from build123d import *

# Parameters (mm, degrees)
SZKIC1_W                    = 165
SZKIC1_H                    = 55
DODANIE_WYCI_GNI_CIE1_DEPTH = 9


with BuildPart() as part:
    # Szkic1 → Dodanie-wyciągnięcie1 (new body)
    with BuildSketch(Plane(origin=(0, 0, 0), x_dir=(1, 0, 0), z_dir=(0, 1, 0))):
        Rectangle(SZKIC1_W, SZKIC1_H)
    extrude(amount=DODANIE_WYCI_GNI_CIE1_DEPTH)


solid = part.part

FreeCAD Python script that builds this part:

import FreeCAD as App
import Part
import Sketcher

V = App.Vector
Q = App.Units.Quantity


def add_polygon(sketch, points):
    """Adds a closed chain of lines whose ends are joined by coincident constraints."""
    first, n = sketch.GeometryCount, len(points)
    for a, b in zip(points, points[1:] + points[:1]):
        sketch.addGeometry(Part.LineSegment(App.Vector(*a, 0), App.Vector(*b, 0)), False)
    for i in range(n):
        sketch.addConstraint(Sketcher.Constraint("Coincident", first + i, 2, first + (i + 1) % n, 1))

doc = App.newDocument("Part")
params = doc.addObject("Spreadsheet::Sheet", "Params")
for row, (alias, value) in enumerate([
    ("sketch1_width", "165 mm"),
    ("sketch1_height", "55 mm"),
    ("pad1_length", "9 mm"),
], start=1):
    params.set(f"A{row}", alias)
    params.set(f"B{row}", "=" + value)
    params.setAlias(f"B{row}", alias)

body = doc.addObject("PartDesign::Body", "Body")

sketch1 = doc.addObject("Sketcher::SketchObject", "Sketch")
body.addObject(sketch1)
sketch1.AttachmentSupport = (doc.XZ_Plane, [""])
sketch1.MapMode = "FlatFace"
add_polygon(sketch1, [(-82, -28), (-82, 28), (82, 28), (82, -28)])
sketch1.addConstraint([
    Sketcher.Constraint("Vertical", 0),
    Sketcher.Constraint("Horizontal", 1),
    Sketcher.Constraint("Vertical", 2),
    Sketcher.Constraint("Horizontal", 3),
    Sketcher.Constraint("Symmetric", 0, 2, 2, 2, -1, 1),
    Sketcher.Constraint("DistanceX", 1, 1, 1, 2, Q("165 mm")),
    Sketcher.Constraint("DistanceY", 0, 1, 0, 2, Q("55 mm")),
])
sketch1.setExpression("Constraints[9]", "Params.sketch1_width")
sketch1.setExpression("Constraints[10]", "Params.sketch1_height")
pad1 = doc.addObject("PartDesign::Pad", "Pad")
body.addObject(pad1)
pad1.Profile = sketch1
pad1.setExpression("Length", "Params.pad1_length")
pad1.Reversed = True

doc.recompute()
